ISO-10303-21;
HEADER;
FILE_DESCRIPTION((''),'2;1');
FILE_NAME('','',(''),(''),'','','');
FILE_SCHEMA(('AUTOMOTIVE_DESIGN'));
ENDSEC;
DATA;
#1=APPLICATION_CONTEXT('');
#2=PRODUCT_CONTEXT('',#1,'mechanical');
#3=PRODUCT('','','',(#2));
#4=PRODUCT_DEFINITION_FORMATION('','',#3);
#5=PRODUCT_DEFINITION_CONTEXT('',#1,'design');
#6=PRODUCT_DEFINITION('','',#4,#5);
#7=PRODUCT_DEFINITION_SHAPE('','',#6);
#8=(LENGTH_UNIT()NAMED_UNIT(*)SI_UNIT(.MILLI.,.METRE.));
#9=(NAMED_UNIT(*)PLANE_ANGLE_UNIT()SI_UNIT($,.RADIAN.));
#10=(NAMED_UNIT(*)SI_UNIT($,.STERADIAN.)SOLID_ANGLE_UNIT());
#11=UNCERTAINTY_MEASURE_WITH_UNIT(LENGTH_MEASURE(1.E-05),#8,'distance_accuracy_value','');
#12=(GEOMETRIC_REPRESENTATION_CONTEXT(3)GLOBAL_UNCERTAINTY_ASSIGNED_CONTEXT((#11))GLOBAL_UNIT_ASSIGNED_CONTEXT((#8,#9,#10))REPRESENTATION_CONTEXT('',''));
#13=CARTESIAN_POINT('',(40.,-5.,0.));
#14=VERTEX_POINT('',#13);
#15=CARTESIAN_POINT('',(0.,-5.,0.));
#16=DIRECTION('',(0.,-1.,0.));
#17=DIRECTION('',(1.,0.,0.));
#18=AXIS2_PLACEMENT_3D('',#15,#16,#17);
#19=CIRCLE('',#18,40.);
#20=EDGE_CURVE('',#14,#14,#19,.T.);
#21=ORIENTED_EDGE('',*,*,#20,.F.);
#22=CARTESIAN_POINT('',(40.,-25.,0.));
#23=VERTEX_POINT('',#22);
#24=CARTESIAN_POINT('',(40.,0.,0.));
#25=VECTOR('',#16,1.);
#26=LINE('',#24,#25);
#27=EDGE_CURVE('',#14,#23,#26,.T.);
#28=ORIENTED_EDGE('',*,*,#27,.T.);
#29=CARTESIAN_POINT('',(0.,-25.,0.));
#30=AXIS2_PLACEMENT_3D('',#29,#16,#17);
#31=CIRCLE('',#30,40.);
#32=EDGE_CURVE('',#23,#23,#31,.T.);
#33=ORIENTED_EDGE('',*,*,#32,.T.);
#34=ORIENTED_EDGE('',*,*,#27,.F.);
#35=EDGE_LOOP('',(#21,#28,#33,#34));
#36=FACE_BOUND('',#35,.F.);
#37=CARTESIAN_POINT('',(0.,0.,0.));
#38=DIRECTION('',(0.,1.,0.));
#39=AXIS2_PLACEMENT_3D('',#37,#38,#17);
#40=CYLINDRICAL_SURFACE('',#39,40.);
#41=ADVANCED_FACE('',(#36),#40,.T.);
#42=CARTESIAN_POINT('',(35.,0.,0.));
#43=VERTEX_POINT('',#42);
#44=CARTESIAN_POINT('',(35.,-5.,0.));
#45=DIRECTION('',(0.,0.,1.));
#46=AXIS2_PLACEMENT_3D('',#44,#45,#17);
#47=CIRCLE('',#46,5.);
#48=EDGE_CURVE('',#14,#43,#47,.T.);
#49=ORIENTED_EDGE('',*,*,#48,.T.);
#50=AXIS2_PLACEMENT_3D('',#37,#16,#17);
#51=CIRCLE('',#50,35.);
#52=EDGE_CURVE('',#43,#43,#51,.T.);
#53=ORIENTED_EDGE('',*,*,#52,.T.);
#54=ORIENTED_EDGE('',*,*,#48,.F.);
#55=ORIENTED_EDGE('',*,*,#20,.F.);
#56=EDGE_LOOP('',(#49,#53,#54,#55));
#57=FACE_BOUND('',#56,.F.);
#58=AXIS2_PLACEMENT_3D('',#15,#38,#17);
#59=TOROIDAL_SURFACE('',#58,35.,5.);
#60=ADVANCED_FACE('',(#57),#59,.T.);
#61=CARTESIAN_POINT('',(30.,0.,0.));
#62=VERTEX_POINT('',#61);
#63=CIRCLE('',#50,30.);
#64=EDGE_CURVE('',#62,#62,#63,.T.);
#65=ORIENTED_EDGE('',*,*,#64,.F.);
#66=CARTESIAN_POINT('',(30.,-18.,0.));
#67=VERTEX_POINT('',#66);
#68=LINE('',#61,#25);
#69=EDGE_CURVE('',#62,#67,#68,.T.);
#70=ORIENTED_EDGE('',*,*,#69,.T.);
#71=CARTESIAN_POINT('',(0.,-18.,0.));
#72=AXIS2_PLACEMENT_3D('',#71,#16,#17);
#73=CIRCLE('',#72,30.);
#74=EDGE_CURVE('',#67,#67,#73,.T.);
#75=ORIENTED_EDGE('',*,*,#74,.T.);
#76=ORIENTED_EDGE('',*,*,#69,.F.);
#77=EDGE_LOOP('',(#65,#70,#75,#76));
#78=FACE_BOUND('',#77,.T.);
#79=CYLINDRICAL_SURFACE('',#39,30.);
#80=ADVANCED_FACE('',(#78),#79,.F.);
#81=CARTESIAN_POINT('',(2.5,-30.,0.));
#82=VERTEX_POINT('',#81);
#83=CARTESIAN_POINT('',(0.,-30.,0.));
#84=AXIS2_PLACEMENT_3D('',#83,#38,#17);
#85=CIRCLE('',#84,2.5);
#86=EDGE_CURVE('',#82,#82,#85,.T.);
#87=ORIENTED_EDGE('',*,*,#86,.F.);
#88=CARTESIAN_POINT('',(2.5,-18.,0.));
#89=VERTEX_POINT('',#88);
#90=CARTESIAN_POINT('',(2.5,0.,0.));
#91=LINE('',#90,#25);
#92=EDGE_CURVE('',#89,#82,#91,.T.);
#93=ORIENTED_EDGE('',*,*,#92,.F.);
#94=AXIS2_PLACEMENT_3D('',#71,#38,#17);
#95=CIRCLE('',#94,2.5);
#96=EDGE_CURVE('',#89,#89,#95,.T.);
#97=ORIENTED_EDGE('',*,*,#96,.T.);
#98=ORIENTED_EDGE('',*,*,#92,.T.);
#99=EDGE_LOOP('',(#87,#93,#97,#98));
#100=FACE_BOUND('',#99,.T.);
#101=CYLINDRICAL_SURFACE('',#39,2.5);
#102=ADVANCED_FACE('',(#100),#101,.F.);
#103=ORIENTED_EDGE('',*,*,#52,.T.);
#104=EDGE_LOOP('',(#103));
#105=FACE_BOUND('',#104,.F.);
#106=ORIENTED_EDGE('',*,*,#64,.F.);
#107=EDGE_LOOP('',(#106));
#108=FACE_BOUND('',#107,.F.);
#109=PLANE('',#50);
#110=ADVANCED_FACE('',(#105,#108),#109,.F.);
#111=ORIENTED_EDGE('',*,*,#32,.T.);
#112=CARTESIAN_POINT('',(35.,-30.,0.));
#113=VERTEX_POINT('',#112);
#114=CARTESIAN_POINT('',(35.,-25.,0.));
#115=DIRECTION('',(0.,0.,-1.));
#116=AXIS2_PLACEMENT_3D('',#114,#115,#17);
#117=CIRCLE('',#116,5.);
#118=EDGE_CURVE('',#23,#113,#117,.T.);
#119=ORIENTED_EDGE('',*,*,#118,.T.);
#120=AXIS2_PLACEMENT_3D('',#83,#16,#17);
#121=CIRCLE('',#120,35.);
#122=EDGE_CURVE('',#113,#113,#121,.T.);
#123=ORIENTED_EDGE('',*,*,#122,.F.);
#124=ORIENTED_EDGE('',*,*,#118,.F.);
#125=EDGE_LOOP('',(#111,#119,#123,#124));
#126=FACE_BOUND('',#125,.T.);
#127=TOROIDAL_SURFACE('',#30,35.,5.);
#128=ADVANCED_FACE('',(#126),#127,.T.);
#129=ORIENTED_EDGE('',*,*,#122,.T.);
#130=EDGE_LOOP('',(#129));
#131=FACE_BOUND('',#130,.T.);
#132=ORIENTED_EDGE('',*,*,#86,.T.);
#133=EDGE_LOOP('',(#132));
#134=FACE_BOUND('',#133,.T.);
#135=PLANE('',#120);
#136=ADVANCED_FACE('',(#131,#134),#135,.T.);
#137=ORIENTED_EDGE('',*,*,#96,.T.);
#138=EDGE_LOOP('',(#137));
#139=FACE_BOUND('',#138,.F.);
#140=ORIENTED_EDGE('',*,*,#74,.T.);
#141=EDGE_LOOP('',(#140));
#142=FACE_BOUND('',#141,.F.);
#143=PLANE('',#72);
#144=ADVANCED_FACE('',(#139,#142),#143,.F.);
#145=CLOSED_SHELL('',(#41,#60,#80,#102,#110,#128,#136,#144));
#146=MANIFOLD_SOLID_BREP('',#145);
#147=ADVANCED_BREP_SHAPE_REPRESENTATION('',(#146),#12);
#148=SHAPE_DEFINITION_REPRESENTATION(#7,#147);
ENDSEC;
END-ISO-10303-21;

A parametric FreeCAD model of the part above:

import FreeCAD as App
import Part
import Sketcher

V = App.Vector
Q = App.Units.Quantity

doc = App.newDocument("Part")
body = doc.addObject("PartDesign::Body", "Body")

# Sketch on XZ plane
sketch1 = body.newObject("Sketcher::SketchObject", "Sketch")
sketch1.AttachmentSupport = (doc.getObject("XZ_Plane"), [""])
sketch1.MapMode = "FlatFace"
sketch1.addGeometry(Part.Circle(V(0, 0, 0), V(0, 0, 1), 40), False)
sketch1.addConstraint([
    Sketcher.Constraint("Coincident", 0, 3, -1, 1),
    Sketcher.Constraint("Diameter", 0, Q("80 mm")),
])
pad1 = body.newObject("PartDesign::Pad", "Pad")
pad1.Profile = sketch1
pad1.Length = 30
doc.recompute()

fillet = body.newObject("PartDesign::Fillet", "Fillet")
fillet.Base = (pad1, ["Edge1"])
fillet.UseAllEdges = True
fillet.Radius = 5

# Sketch on XZ plane
sketch2 = body.newObject("Sketcher::SketchObject", "Sketch001")
sketch2.AttachmentSupport = (doc.getObject("XZ_Plane"), [""])
sketch2.MapMode = "FlatFace"
sketch2.addGeometry(Part.Circle(V(0, 0, 0), V(0, 0, 1), 30), False)
sketch2.addConstraint([
    Sketcher.Constraint("Coincident", 0, 3, -1, 1),
    Sketcher.Constraint("Diameter", 0, Q("60 mm")),
])
pocket1 = body.newObject("PartDesign::Pocket", "Pocket")
pocket1.Profile = sketch2
pocket1.Length = 18
pocket1.Reversed = True

# Sketch on XZ plane
sketch3 = body.newObject("Sketcher::SketchObject", "Sketch002")
sketch3.AttachmentSupport = (doc.getObject("XZ_Plane"), [""])
sketch3.MapMode = "FlatFace"
sketch3.addGeometry(Part.Circle(V(0, 0, 0), V(0, 0, 1), 2.5), False)
sketch3.addConstraint([
    Sketcher.Constraint("Coincident", 0, 3, -1, 1),
    Sketcher.Constraint("Diameter", 0, Q("5 mm")),
])
pocket2 = body.newObject("PartDesign::Pocket", "Pocket001")
pocket2.Profile = sketch3
pocket2.Length = 41.9
pocket2.Reversed = True

doc.recompute()
